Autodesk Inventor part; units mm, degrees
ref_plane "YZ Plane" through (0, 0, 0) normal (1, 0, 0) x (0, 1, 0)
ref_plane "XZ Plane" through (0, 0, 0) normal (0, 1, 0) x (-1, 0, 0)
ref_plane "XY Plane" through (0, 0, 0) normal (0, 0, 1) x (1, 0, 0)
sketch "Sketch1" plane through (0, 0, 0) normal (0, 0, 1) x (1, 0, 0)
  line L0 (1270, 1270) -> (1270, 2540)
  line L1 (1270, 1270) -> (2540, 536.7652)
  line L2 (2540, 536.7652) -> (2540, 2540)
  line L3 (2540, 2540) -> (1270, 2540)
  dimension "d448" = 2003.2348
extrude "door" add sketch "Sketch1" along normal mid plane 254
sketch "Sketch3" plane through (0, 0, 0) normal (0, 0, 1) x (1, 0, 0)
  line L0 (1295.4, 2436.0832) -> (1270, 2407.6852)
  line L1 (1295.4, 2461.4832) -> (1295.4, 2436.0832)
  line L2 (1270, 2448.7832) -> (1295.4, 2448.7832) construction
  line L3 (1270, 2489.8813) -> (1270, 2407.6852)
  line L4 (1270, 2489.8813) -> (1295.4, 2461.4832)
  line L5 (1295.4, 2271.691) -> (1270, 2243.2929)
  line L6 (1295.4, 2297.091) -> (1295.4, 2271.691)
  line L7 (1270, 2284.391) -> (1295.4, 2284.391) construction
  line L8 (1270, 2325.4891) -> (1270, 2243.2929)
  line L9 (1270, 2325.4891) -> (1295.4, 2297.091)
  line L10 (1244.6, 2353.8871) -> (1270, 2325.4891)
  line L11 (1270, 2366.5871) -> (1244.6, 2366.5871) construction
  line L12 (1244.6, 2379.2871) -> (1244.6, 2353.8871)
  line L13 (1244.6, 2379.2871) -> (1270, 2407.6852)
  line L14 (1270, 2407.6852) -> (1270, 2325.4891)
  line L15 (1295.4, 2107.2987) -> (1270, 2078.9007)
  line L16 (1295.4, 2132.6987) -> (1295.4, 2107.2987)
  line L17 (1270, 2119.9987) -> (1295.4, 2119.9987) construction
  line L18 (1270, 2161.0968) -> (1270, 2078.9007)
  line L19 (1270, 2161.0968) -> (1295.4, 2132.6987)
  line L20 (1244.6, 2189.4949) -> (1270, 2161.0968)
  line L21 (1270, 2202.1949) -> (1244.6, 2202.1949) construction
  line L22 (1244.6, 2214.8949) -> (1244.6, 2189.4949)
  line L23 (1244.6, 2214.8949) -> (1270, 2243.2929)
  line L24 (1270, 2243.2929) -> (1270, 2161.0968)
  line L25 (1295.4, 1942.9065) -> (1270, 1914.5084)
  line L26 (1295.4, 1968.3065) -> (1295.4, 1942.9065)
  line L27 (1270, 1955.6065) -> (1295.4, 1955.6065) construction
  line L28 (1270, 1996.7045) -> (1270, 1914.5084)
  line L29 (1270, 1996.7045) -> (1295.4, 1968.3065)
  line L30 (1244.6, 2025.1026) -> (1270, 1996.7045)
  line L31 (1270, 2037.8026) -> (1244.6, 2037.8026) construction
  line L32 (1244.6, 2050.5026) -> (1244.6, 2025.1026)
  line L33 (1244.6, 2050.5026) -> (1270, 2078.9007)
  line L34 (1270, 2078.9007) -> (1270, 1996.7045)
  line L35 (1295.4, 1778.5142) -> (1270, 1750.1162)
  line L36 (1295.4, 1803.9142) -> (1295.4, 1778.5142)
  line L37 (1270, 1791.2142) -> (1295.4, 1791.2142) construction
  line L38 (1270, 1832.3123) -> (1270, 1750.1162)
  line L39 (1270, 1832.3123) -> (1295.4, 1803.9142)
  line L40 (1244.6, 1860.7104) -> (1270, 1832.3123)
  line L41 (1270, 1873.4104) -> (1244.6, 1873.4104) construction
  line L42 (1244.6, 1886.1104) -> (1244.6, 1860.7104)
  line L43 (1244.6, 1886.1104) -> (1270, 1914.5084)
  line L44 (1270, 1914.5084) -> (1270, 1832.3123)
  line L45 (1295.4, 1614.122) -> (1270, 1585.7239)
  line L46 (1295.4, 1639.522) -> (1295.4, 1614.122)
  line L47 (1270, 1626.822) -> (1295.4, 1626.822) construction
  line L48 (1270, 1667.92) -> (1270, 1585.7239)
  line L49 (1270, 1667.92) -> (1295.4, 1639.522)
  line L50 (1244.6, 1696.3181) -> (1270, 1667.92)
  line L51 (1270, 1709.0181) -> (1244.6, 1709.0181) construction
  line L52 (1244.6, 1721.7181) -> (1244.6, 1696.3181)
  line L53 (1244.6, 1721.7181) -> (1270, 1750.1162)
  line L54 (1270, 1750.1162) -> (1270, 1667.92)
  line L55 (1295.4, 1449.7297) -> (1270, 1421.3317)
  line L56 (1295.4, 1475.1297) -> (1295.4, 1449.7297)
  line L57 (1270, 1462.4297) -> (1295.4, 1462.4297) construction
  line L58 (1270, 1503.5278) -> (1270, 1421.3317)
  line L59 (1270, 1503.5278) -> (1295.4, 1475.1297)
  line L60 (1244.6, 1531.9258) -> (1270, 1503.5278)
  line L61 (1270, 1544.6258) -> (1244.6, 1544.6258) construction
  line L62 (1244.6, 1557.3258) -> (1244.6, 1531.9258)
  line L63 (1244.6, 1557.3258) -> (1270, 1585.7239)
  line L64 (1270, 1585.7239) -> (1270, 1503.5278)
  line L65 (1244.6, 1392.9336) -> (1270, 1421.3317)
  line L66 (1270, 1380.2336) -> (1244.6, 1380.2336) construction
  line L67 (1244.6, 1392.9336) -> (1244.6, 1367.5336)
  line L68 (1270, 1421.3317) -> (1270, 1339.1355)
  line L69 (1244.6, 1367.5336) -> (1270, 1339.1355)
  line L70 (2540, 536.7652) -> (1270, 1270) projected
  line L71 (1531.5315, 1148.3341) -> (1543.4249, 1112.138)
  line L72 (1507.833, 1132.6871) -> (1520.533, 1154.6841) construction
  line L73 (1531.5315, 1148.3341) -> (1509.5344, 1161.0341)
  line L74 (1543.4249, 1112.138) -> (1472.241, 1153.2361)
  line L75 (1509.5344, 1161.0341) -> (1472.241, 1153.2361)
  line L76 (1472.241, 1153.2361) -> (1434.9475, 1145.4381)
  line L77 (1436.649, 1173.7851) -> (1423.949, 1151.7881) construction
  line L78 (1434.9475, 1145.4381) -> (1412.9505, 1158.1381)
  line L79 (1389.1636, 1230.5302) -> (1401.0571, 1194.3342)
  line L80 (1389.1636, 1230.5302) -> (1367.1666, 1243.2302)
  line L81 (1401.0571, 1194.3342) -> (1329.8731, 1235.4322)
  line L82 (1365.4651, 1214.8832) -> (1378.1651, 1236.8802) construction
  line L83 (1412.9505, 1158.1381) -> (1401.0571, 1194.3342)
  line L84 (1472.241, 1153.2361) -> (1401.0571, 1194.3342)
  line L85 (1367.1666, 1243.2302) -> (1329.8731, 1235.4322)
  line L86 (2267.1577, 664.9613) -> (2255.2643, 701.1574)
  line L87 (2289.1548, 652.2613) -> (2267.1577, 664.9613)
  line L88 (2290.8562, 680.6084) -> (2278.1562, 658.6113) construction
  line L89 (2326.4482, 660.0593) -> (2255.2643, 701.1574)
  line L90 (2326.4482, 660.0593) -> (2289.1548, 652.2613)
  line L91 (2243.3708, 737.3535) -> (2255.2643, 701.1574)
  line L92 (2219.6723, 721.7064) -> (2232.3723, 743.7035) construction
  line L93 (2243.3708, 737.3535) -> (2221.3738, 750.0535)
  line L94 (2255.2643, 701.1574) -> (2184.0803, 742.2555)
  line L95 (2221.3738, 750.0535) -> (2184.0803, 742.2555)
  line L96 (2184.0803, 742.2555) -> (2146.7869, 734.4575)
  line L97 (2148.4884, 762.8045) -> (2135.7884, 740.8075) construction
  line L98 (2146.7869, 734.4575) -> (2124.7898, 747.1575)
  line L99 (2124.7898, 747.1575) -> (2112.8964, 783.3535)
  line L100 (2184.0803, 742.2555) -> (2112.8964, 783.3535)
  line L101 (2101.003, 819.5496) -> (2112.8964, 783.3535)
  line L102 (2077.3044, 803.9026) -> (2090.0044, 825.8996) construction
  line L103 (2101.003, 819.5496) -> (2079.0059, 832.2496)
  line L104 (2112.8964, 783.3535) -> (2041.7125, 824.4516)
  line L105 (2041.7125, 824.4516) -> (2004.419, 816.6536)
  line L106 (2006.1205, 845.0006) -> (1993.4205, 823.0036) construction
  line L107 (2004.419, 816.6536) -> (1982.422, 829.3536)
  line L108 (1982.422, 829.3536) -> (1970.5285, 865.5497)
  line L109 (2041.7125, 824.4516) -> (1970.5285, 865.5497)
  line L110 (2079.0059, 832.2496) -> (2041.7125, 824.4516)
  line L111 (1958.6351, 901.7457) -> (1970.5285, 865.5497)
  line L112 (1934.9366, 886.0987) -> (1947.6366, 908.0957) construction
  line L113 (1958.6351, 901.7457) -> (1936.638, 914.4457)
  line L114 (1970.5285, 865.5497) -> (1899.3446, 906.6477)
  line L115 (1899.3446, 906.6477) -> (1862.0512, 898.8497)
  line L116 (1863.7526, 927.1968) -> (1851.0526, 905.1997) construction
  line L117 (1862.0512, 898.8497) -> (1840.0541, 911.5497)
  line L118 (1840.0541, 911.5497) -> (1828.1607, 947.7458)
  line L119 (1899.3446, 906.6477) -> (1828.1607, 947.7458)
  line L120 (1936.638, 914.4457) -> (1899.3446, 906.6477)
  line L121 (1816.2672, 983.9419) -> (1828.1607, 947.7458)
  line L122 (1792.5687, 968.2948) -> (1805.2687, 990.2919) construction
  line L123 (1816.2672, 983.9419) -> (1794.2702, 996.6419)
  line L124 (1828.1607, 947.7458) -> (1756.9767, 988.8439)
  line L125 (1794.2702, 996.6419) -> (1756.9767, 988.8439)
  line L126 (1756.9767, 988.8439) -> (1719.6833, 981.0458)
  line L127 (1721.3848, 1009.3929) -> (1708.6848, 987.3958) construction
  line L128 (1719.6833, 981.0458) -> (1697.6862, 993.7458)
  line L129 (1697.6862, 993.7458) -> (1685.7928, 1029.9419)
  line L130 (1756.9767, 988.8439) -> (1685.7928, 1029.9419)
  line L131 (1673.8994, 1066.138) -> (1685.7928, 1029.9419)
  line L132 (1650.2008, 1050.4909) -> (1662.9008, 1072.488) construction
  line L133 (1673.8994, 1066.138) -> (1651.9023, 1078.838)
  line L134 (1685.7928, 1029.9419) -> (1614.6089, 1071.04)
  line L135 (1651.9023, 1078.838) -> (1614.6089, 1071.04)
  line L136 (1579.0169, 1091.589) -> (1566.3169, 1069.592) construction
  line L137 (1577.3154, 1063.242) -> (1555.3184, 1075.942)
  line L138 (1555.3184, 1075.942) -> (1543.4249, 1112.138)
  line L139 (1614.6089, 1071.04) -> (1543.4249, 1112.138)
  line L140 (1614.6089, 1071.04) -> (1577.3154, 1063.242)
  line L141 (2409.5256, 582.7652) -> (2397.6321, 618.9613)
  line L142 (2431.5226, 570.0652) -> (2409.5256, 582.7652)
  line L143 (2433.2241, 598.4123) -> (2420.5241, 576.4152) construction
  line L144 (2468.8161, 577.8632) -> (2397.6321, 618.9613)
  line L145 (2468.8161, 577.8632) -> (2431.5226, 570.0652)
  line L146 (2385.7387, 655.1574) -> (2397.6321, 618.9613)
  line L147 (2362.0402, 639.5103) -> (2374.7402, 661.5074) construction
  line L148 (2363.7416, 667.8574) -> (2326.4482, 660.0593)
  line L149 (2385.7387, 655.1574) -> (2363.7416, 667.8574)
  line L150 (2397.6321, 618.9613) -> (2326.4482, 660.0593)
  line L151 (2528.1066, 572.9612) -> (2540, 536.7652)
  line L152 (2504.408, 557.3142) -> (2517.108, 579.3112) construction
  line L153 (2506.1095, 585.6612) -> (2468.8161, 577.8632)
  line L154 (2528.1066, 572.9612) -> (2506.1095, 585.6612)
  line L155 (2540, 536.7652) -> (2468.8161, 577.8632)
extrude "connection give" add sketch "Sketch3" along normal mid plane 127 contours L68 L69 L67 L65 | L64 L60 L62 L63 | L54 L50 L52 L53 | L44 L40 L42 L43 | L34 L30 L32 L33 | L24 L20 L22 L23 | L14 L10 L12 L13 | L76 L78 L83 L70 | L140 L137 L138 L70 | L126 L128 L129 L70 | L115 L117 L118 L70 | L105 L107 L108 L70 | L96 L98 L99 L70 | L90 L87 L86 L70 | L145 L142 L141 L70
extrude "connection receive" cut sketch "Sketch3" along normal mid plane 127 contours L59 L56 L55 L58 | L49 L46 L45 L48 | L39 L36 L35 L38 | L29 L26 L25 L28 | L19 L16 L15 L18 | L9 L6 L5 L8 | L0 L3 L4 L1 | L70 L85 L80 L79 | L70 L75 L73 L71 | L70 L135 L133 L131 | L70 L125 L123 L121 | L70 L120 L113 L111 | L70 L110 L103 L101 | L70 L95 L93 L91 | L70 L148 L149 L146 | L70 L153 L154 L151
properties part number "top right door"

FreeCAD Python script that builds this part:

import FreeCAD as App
import Part
import Sketcher
from FreeCAD import Vector
Q = App.Units.Quantity

doc = App.newDocument("Part")
params = doc.addObject("Spreadsheet::Sheet", "Params")
for row, (alias, value) in enumerate([
    ("sketch1_width", "50 in"),
    ("pad1_length", "10 in"),
    ("sketch2_height", "1 in"),
    ("sketch2_length", "1 in"),
    ("sketch2_length2", "1.5 in"),
    ("pad2_length", "5 in"),
    ("sketch3_height", "1 in"),
    ("sketch3_length", "1 in"),
    ("sketch3_length2", "1.5 in"),
    ("pocket1_length", "5 in"),
], start=1):
    params.set(f"A{row}", alias)
    params.set(f"B{row}", "=" + value)
    params.setAlias(f"B{row}", alias)

body = doc.addObject("PartDesign::Body", "Body")

# Sketch on XY plane
sketch1 = doc.addObject("Sketcher::SketchObject", "Sketch")
body.addObject(sketch1)
sketch1.AttachmentSupport = (doc.XY_Plane, [""])
sketch1.MapMode = "FlatFace"
sketch1.addGeometry([
    Part.LineSegment(Vector(1270, 2540, 0), Vector(1270, 1270, 0)),
    Part.LineSegment(Vector(1270, 1270, 0), Vector(2540, 537, 0)),
    Part.LineSegment(Vector(2540, 537, 0), Vector(2540, 2540, 0)),
    Part.LineSegment(Vector(2540, 2540, 0), Vector(1270, 2540, 0)),
], False)
sketch1.addConstraint([
    Sketcher.Constraint("Coincident", 0, 2, 1, 1),
    Sketcher.Constraint("Coincident", 1, 2, 2, 1),
    Sketcher.Constraint("Coincident", 2, 2, 3, 1),
    Sketcher.Constraint("Coincident", 3, 2, 0, 1),
    Sketcher.Constraint("Vertical", 0),
    Sketcher.Constraint("Vertical", 2),
    Sketcher.Constraint("Horizontal", 3),
    Sketcher.Constraint("Equal", 3, 0),
    Sketcher.Constraint("DistanceX", 3, 2, 3, 1, Q("50 in")),
    Sketcher.Constraint("DistanceY", 2, 1, 2, 2, Q("78.8675 in")),
    Sketcher.Constraint("DistanceX", -1, 1, 0, 2, Q("50 in")),
    Sketcher.Constraint("DistanceY", -1, 1, 0, 2, Q("50 in")),
])
sketch1.setExpression("Constraints[8]", "Params.sketch1_width")
pad1 = doc.addObject("PartDesign::Pad", "Pad")
body.addObject(pad1)
pad1.Profile = sketch1
pad1.setExpression("Length", "Params.pad1_length")
pad1.Midplane = True

# Sketch on XY plane
sketch2 = doc.addObject("Sketcher::SketchObject", "Sketch001")
body.addObject(sketch2)
sketch2.AttachmentSupport = (doc.XY_Plane, [""])
sketch2.MapMode = "FlatFace"
sketch2.addGeometry([
    Part.LineSegment(Vector(1270, 1339, 0), Vector(1270, 1421, 0)),  # 0
    Part.LineSegment(Vector(1270, 1421, 0), Vector(1245, 1393, 0)),  # 1
    Part.LineSegment(Vector(1245, 1393, 0), Vector(1245, 1368, 0)),  # 2
    Part.LineSegment(Vector(1245, 1368, 0), Vector(1270, 1339, 0)),  # 3
    Part.LineSegment(Vector(1270, 1504, 0), Vector(1270, 1586, 0)),  # 4
    Part.LineSegment(Vector(1270, 1586, 0), Vector(1245, 1557, 0)),  # 5
    Part.LineSegment(Vector(1245, 1557, 0), Vector(1245, 1532, 0)),  # 6
    Part.LineSegment(Vector(1245, 1532, 0), Vector(1270, 1504, 0)),  # 7
    Part.LineSegment(Vector(1270, 1668, 0), Vector(1270, 1750, 0)),  # 8
    Part.LineSegment(Vector(1270, 1750, 0), Vector(1245, 1722, 0)),  # 9
    Part.LineSegment(Vector(1245, 1722, 0), Vector(1245, 1696, 0)),  # 10
    Part.LineSegment(Vector(1245, 1696, 0), Vector(1270, 1668, 0)),  # 11
    Part.LineSegment(Vector(1270, 1832, 0), Vector(1270, 1915, 0)),  # 12
    Part.LineSegment(Vector(1270, 1915, 0), Vector(1245, 1886, 0)),  # 13
    Part.LineSegment(Vector(1245, 1886, 0), Vector(1245, 1861, 0)),  # 14
    Part.LineSegment(Vector(1245, 1861, 0), Vector(1270, 1832, 0)),  # 15
    Part.LineSegment(Vector(1270, 1997, 0), Vector(1270, 2079, 0)),  # 16
    Part.LineSegment(Vector(1270, 2079, 0), Vector(1245, 2051, 0)),  # 17
    Part.LineSegment(Vector(1245, 2051, 0), Vector(1245, 2025, 0)),  # 18
    Part.LineSegment(Vector(1245, 2025, 0), Vector(1270, 1997, 0)),  # 19
    Part.LineSegment(Vector(1270, 2161, 0), Vector(1270, 2243, 0)),  # 20
    Part.LineSegment(Vector(1270, 2243, 0), Vector(1245, 2215, 0)),  # 21
    Part.LineSegment(Vector(1245, 2215, 0), Vector(1245, 2189, 0)),  # 22
    Part.LineSegment(Vector(1245, 2189, 0), Vector(1270, 2161, 0)),  # 23
    Part.LineSegment(Vector(1270, 2325, 0), Vector(1270, 2408, 0)),  # 24
    Part.LineSegment(Vector(1270, 2408, 0), Vector(1245, 2379, 0)),  # 25
    Part.LineSegment(Vector(1245, 2379, 0), Vector(1245, 2354, 0)),  # 26
    Part.LineSegment(Vector(1245, 2354, 0), Vector(1270, 2325, 0)),  # 27
    Part.LineSegment(Vector(1435, 1145, 0), Vector(1472, 1153, 0)),  # 28
    Part.LineSegment(Vector(1472, 1153, 0), Vector(1401, 1194, 0)),  # 29
    Part.LineSegment(Vector(1401, 1194, 0), Vector(1413, 1158, 0)),  # 30
    Part.LineSegment(Vector(1413, 1158, 0), Vector(1435, 1145, 0)),  # 31
    Part.LineSegment(Vector(1577, 1063, 0), Vector(1615, 1071, 0)),  # 32
    Part.LineSegment(Vector(1615, 1071, 0), Vector(1543, 1112, 0)),  # 33
    Part.LineSegment(Vector(1543, 1112, 0), Vector(1555, 1076, 0)),  # 34
    Part.LineSegment(Vector(1555, 1076, 0), Vector(1577, 1063, 0)),  # 35
    Part.LineSegment(Vector(1720, 981, 0), Vector(1757, 989, 0)),  # 36
    Part.LineSegment(Vector(1757, 989, 0), Vector(1686, 1030, 0)),  # 37
    Part.LineSegment(Vector(1686, 1030, 0), Vector(1698, 994, 0)),  # 38
    Part.LineSegment(Vector(1698, 994, 0), Vector(1720, 981, 0)),  # 39
    Part.LineSegment(Vector(1862, 899, 0), Vector(1899, 907, 0)),  # 40
    Part.LineSegment(Vector(1899, 907, 0), Vector(1828, 948, 0)),  # 41
    Part.LineSegment(Vector(1828, 948, 0), Vector(1840, 912, 0)),  # 42
    Part.LineSegment(Vector(1840, 912, 0), Vector(1862, 899, 0)),  # 43
    Part.LineSegment(Vector(2004, 817, 0), Vector(2042, 824, 0)),  # 44
    Part.LineSegment(Vector(2042, 824, 0), Vector(1971, 866, 0)),  # 45
    Part.LineSegment(Vector(1971, 866, 0), Vector(1982, 829, 0)),  # 46
    Part.LineSegment(Vector(1982, 829, 0), Vector(2004, 817, 0)),  # 47
    Part.LineSegment(Vector(2147, 734, 0), Vector(2184, 742, 0)),  # 48
    Part.LineSegment(Vector(2184, 742, 0), Vector(2113, 783, 0)),  # 49
    Part.LineSegment(Vector(2113, 783, 0), Vector(2125, 747, 0)),  # 50
    Part.LineSegment(Vector(2125, 747, 0), Vector(2147, 734, 0)),  # 51
    Part.LineSegment(Vector(2289, 652, 0), Vector(2326, 660, 0)),  # 52
    Part.LineSegment(Vector(2326, 660, 0), Vector(2255, 701, 0)),  # 53
    Part.LineSegment(Vector(2255, 701, 0), Vector(2267, 665, 0)),  # 54
    Part.LineSegment(Vector(2267, 665, 0), Vector(2289, 652, 0)),  # 55
    Part.LineSegment(Vector(2432, 570, 0), Vector(2469, 578, 0)),  # 56
    Part.LineSegment(Vector(2469, 578, 0), Vector(2398, 619, 0)),  # 57
    Part.LineSegment(Vector(2398, 619, 0), Vector(2410, 583, 0)),  # 58
    Part.LineSegment(Vector(2410, 583, 0), Vector(2432, 570, 0)),  # 59
], False)
sketch2.addConstraint([
    Sketcher.Constraint("Coincident", 0, 2, 1, 1),
    Sketcher.Constraint("Coincident", 1, 2, 2, 1),
    Sketcher.Constraint("Coincident", 2, 2, 3, 1),
    Sketcher.Constraint("Coincident", 3, 2, 0, 1),
    Sketcher.Constraint("Coincident", 4, 2, 5, 1),
    Sketcher.Constraint("Coincident", 5, 2, 6, 1),
    Sketcher.Constraint("Coincident", 6, 2, 7, 1),
    Sketcher.Constraint("Coincident", 7, 2, 4, 1),
    Sketcher.Constraint("Coincident", 8, 2, 9, 1),
    Sketcher.Constraint("Coincident", 9, 2, 10, 1),
    Sketcher.Constraint("Coincident", 10, 2, 11, 1),
    Sketcher.Constraint("Coincident", 11, 2, 8, 1),
    Sketcher.Constraint("Coincident", 12, 2, 13, 1),
    Sketcher.Constraint("Coincident", 13, 2, 14, 1),
    Sketcher.Constraint("Coincident", 14, 2, 15, 1),
    Sketcher.Constraint("Coincident", 15, 2, 12, 1),
    Sketcher.Constraint("Coincident", 16, 2, 17, 1),
    Sketcher.Constraint("Coincident", 17, 2, 18, 1),
    Sketcher.Constraint("Coincident", 18, 2, 19, 1),
    Sketcher.Constraint("Coincident", 19, 2, 16, 1),
    Sketcher.Constraint("Coincident", 20, 2, 21, 1),
    Sketcher.Constraint("Coincident", 21, 2, 22, 1),
    Sketcher.Constraint("Coincident", 22, 2, 23, 1),
    Sketcher.Constraint("Coincident", 23, 2, 20, 1),
    Sketcher.Constraint("Coincident", 24, 2, 25, 1),
    Sketcher.Constraint("Coincident", 25, 2, 26, 1),
    Sketcher.Constraint("Coincident", 26, 2, 27, 1),
    Sketcher.Constraint("Coincident", 27, 2, 24, 1),
    Sketcher.Constraint("Coincident", 28, 2, 29, 1),
    Sketcher.Constraint("Coincident", 29, 2, 30, 1),
    Sketcher.Constraint("Coincident", 30, 2, 31, 1),
    Sketcher.Constraint("Coincident", 31, 2, 28, 1),
    Sketcher.Constraint("Coincident", 32, 2, 33, 1),
    Sketcher.Constraint("Coincident", 33, 2, 34, 1),
    Sketcher.Constraint("Coincident", 34, 2, 35, 1),
    Sketcher.Constraint("Coincident", 35, 2, 32, 1),
    Sketcher.Constraint("Coincident", 36, 2, 37, 1),
    Sketcher.Constraint("Coincident", 37, 2, 38, 1),
    Sketcher.Constraint("Coincident", 38, 2, 39, 1),
    Sketcher.Constraint("Coincident", 39, 2, 36, 1),
    Sketcher.Constraint("Coincident", 40, 2, 41, 1),
    Sketcher.Constraint("Coincident", 41, 2, 42, 1),
    Sketcher.Constraint("Coincident", 42, 2, 43, 1),
    Sketcher.Constraint("Coincident", 43, 2, 40, 1),
    Sketcher.Constraint("Coincident", 44, 2, 45, 1),
    Sketcher.Constraint("Coincident", 45, 2, 46, 1),
    Sketcher.Constraint("Coincident", 46, 2, 47, 1),
    Sketcher.Constraint("Coincident", 47, 2, 44, 1),
    Sketcher.Constraint("Coincident", 48, 2, 49, 1),
    Sketcher.Constraint("Coincident", 49, 2, 50, 1),
    Sketcher.Constraint("Coincident", 50, 2, 51, 1),
    Sketcher.Constraint("Coincident", 51, 2, 48, 1),
    Sketcher.Constraint("Coincident", 52, 2, 53, 1),
    Sketcher.Constraint("Coincident", 53, 2, 54, 1),
    Sketcher.Constraint("Coincident", 54, 2, 55, 1),
    Sketcher.Constraint("Coincident", 55, 2, 52, 1),
    Sketcher.Constraint("Coincident", 56, 2, 57, 1),
    Sketcher.Constraint("Coincident", 57, 2, 58, 1),
    Sketcher.Constraint("Coincident", 58, 2, 59, 1),
    Sketcher.Constraint("Coincident", 59, 2, 56, 1),
    Sketcher.Constraint("Vertical", 0),
    Sketcher.Constraint("Vertical", 2),
    Sketcher.Constraint("Vertical", 4),
    Sketcher.Constraint("Vertical", 6),
    Sketcher.Constraint("Vertical", 8),
    Sketcher.Constraint("Vertical", 10),
    Sketcher.Constraint("Vertical", 12),
    Sketcher.Constraint("Vertical", 14),
    Sketcher.Constraint("Vertical", 16),
    Sketcher.Constraint("Vertical", 18),
    Sketcher.Constraint("Vertical", 20),
    Sketcher.Constraint("Vertical", 22),
    Sketcher.Constraint("Vertical", 24),
    Sketcher.Constraint("Vertical", 26),
    Sketcher.Constraint("Parallel", 1, 5),
    Sketcher.Constraint("Parallel", 3, 7),
    Sketcher.Constraint("Parallel", 5, 9),
    Sketcher.Constraint("Parallel", 7, 11),
    Sketcher.Constraint("Parallel", 9, 13),
    Sketcher.Constraint("Parallel", 11, 15),
    Sketcher.Constraint("Parallel", 13, 17),
    Sketcher.Constraint("Parallel", 15, 19),
    Sketcher.Constraint("Parallel", 17, 21),
    Sketcher.Constraint("Parallel", 19, 23),
    Sketcher.Constraint("Parallel", 21, 25),
    Sketcher.Constraint("Parallel", 23, 27),
    Sketcher.Constraint("Parallel", 29, 31),
    Sketcher.Constraint("Parallel", 28, 32),
    Sketcher.Constraint("Parallel", 31, 33),
    Sketcher.Constraint("Parallel", 30, 34),
    Sketcher.Constraint("Parallel", 33, 35),
    Sketcher.Constraint("Parallel", 32, 36),
    Sketcher.Constraint("Parallel", 35, 37),
    Sketcher.Constraint("Parallel", 34, 38),
    Sketcher.Constraint("Parallel", 37, 39),
    Sketcher.Constraint("Parallel", 36, 40),
    Sketcher.Constraint("Parallel", 39, 41),
    Sketcher.Constraint("Parallel", 38, 42),
    Sketcher.Constraint("Parallel", 41, 43),
    Sketcher.Constraint("Parallel", 40, 44),
    Sketcher.Constraint("Parallel", 43, 45),
    Sketcher.Constraint("Parallel", 42, 46),
    Sketcher.Constraint("Parallel", 45, 47),
    Sketcher.Constraint("Parallel", 44, 48),
    Sketcher.Constraint("Parallel", 47, 49),
    Sketcher.Constraint("Parallel", 46, 50),
    Sketcher.Constraint("Parallel", 49, 51),
    Sketcher.Constraint("Parallel", 48, 52),
    Sketcher.Constraint("Parallel", 51, 53),
    Sketcher.Constraint("Parallel", 50, 54),
    Sketcher.Constraint("Parallel", 53, 55),
    Sketcher.Constraint("Parallel", 52, 56),
    Sketcher.Constraint("Parallel", 55, 57),
    Sketcher.Constraint("Parallel", 54, 58),
    Sketcher.Constraint("Parallel", 57, 59),
    Sketcher.Constraint("Vertical", 3, 2, 4, 2),
    Sketcher.Constraint("Vertical", 2, 2, 5, 2),
    Sketcher.Constraint("Vertical", 7, 2, 8, 2),
    Sketcher.Constraint("Vertical", 6, 2, 9, 2),
    Sketcher.Constraint("Vertical", 11, 2, 12, 2),
    Sketcher.Constraint("Vertical", 10, 2, 13, 2),
    Sketcher.Constraint("Vertical", 15, 2, 16, 2),
    Sketcher.Constraint("Vertical", 14, 2, 17, 2),
    Sketcher.Constraint("Vertical", 19, 2, 20, 2),
    Sketcher.Constraint("Vertical", 18, 2, 21, 2),
    Sketcher.Constraint("Vertical", 23, 2, 24, 2),
    Sketcher.Constraint("Vertical", 22, 2, 25, 2),
    Sketcher.Constraint("Equal", 0, 4),
    Sketcher.Constraint("Equal", 4, 8),
    Sketcher.Constraint("Equal", 8, 12),
    Sketcher.Constraint("Equal", 12, 16),
    Sketcher.Constraint("Equal", 16, 20),
    Sketcher.Constraint("Equal", 20, 24),
    Sketcher.Constraint("Equal", 1, 3),
    Sketcher.Constraint("Equal", 27, 28),
    Sketcher.Constraint("Equal", 28, 30),
    Sketcher.Constraint("Equal", 30, 32),
    Sketcher.Constraint("Equal", 29, 33),
    Sketcher.Constraint("Equal", 34, 36),
    Sketcher.Constraint("Equal", 33, 37),
    Sketcher.Constraint("Equal", 38, 40),
    Sketcher.Constraint("Equal", 37, 41),
    Sketcher.Constraint("Equal", 42, 44),
    Sketcher.Constraint("Equal", 41, 45),
    Sketcher.Constraint("Equal", 46, 48),
    Sketcher.Constraint("Equal", 45, 49),
    Sketcher.Constraint("Equal", 50, 52),
    Sketcher.Constraint("Equal", 49, 53),
    Sketcher.Constraint("Equal", 54, 56),
    Sketcher.Constraint("Equal", 53, 57),
    Sketcher.Constraint("DistanceY", 2, 2, 2, 1, Q("1 in")),
    Sketcher.Constraint("Distance", 31, Q("1 in")),
    Sketcher.Constraint("DistanceX", -1, 1, 0, 2, Q("50 in")),
    Sketcher.Constraint("DistanceX", -1, 1, 1, 2, Q("49 in")),
    Sketcher.Constraint("Angle", 29, Q("150 deg")),
    Sketcher.Constraint("Distance", 1, Q("1.5 in")),
    Sketcher.Constraint("Angle", 28, Q("11.8103 deg")),
    Sketcher.Constraint("DistanceY", -1, 1, 7, 2, Q("59.194 in")),
    Sketcher.Constraint("DistanceY", -1, 1, 28, 2, Q("45.403 in")),
    Sketcher.Constraint("DistanceX", -1, 1, 31, 2, Q("56.494 in")),
    Sketcher.Constraint("DistanceX", -1, 1, 34, 2, Q("61.233 in")),
    Sketcher.Constraint("DistanceX", 35, 2, 38, 2, Q("4.739 in")),
    Sketcher.Constraint("DistanceX", 39, 2, 42, 2, Q("4.739 in")),
    Sketcher.Constraint("DistanceX", 43, 2, 46, 2, Q("4.739 in")),
    Sketcher.Constraint("DistanceX", 47, 2, 50, 2, Q("4.739 in")),
    Sketcher.Constraint("DistanceX", 51, 2, 54, 2, Q("4.739 in")),
    Sketcher.Constraint("DistanceX", 55, 2, 58, 2, Q("4.739 in")),
    Sketcher.Constraint("DistanceY", -1, 1, 1, 2, Q("54.8399 in")),
    Sketcher.Constraint("DistanceY", -1, 1, 27, 2, Q("91.5547 in")),
    Sketcher.Constraint("DistanceY", -1, 1, 37, 2, Q("40.5489 in")),
    Sketcher.Constraint("DistanceY", -1, 1, 40, 2, Q("35.6948 in")),
    Sketcher.Constraint("DistanceY", -1, 1, 49, 2, Q("30.8407 in")),
    Sketcher.Constraint("DistanceY", -1, 1, 58, 2, Q("22.9435 in")),
    Sketcher.Constraint("DistanceY", 7, 2, 8, 2, Q("9.7082 in")),
    Sketcher.Constraint("DistanceY", 11, 2, 12, 2, Q("9.7082 in")),
    Sketcher.Constraint("DistanceY", 15, 2, 16, 2, Q("9.7082 in")),
    Sketcher.Constraint("DistanceY", 19, 2, 20, 2, Q("9.7082 in")),
    Sketcher.Constraint("DistanceY", 32, 2, 29, 2, Q("4.8541 in")),
    Sketcher.Constraint("DistanceY", 44, 2, 41, 2, Q("4.8541 in")),
    Sketcher.Constraint("DistanceY", 52, 2, 49, 2, Q("4.8541 in")),
])
sketch2.setExpression("Constraints[150]", "Params.sketch2_height")
sketch2.setExpression("Constraints[151]", "Params.sketch2_length")
sketch2.setExpression("Constraints[155]", "Params.sketch2_length2")
pad2 = doc.addObject("PartDesign::Pad", "Pad001")
body.addObject(pad2)
pad2.Profile = sketch2
pad2.setExpression("Length", "Params.pad2_length")
pad2.Midplane = True

# Sketch on XY plane
sketch3 = doc.addObject("Sketcher::SketchObject", "Sketch002")
body.addObject(sketch3)
sketch3.AttachmentSupport = (doc.XY_Plane, [""])
sketch3.MapMode = "FlatFace"
sketch3.addGeometry([
    Part.LineSegment(Vector(1295, 1475, 0), Vector(1270, 1504, 0)),  # 0
    Part.LineSegment(Vector(1270, 1504, 0), Vector(1270, 1421, 0)),  # 1
    Part.LineSegment(Vector(1270, 1421, 0), Vector(1295, 1450, 0)),  # 2
    Part.LineSegment(Vector(1295, 1450, 0), Vector(1295, 1475, 0)),  # 3
    Part.LineSegment(Vector(1295, 1640, 0), Vector(1270, 1668, 0)),  # 4
    Part.LineSegment(Vector(1270, 1668, 0), Vector(1270, 1586, 0)),  # 5
    Part.LineSegment(Vector(1270, 1586, 0), Vector(1295, 1614, 0)),  # 6
    Part.LineSegment(Vector(1295, 1614, 0), Vector(1295, 1640, 0)),  # 7
    Part.LineSegment(Vector(1295, 1804, 0), Vector(1270, 1832, 0)),  # 8
    Part.LineSegment(Vector(1270, 1832, 0), Vector(1270, 1750, 0)),  # 9
    Part.LineSegment(Vector(1270, 1750, 0), Vector(1295, 1779, 0)),  # 10
    Part.LineSegment(Vector(1295, 1779, 0), Vector(1295, 1804, 0)),  # 11
    Part.LineSegment(Vector(1295, 1968, 0), Vector(1270, 1997, 0)),  # 12
    Part.LineSegment(Vector(1270, 1997, 0), Vector(1270, 1915, 0)),  # 13
    Part.LineSegment(Vector(1270, 1915, 0), Vector(1295, 1943, 0)),  # 14
    Part.LineSegment(Vector(1295, 1943, 0), Vector(1295, 1968, 0)),  # 15
    Part.LineSegment(Vector(1295, 2133, 0), Vector(1270, 2161, 0)),  # 16
    Part.LineSegment(Vector(1270, 2161, 0), Vector(1270, 2079, 0)),  # 17
    Part.LineSegment(Vector(1270, 2079, 0), Vector(1295, 2107, 0)),  # 18
    Part.LineSegment(Vector(1295, 2107, 0), Vector(1295, 2133, 0)),  # 19
    Part.LineSegment(Vector(1295, 2297, 0), Vector(1270, 2325, 0)),  # 20
    Part.LineSegment(Vector(1270, 2325, 0), Vector(1270, 2243, 0)),  # 21
    Part.LineSegment(Vector(1270, 2243, 0), Vector(1295, 2272, 0)),  # 22
    Part.LineSegment(Vector(1295, 2272, 0), Vector(1295, 2297, 0)),  # 23
    Part.LineSegment(Vector(1270, 2408, 0), Vector(1295, 2436, 0)),  # 24
    Part.LineSegment(Vector(1295, 2436, 0), Vector(1295, 2461, 0)),  # 25
    Part.LineSegment(Vector(1295, 2461, 0), Vector(1270, 2490, 0)),  # 26
    Part.LineSegment(Vector(1270, 2490, 0), Vector(1270, 2408, 0)),  # 27
    Part.LineSegment(Vector(1330, 1235, 0), Vector(1401, 1194, 0)),  # 28
    Part.LineSegment(Vector(1401, 1194, 0), Vector(1389, 1231, 0)),  # 29
    Part.LineSegment(Vector(1389, 1231, 0), Vector(1367, 1243, 0)),  # 30
    Part.LineSegment(Vector(1367, 1243, 0), Vector(1330, 1235, 0)),  # 31
    Part.LineSegment(Vector(1472, 1153, 0), Vector(1543, 1112, 0)),  # 32
    Part.LineSegment(Vector(1543, 1112, 0), Vector(1532, 1148, 0)),  # 33
    Part.LineSegment(Vector(1532, 1148, 0), Vector(1510, 1161, 0)),  # 34
    Part.LineSegment(Vector(1510, 1161, 0), Vector(1472, 1153, 0)),  # 35
    Part.LineSegment(Vector(1615, 1071, 0), Vector(1686, 1030, 0)),  # 36
    Part.LineSegment(Vector(1686, 1030, 0), Vector(1674, 1066, 0)),  # 37
    Part.LineSegment(Vector(1674, 1066, 0), Vector(1652, 1079, 0)),  # 38
    Part.LineSegment(Vector(1652, 1079, 0), Vector(1615, 1071, 0)),  # 39
    Part.LineSegment(Vector(1757, 989, 0), Vector(1828, 948, 0)),  # 40
    Part.LineSegment(Vector(1828, 948, 0), Vector(1816, 984, 0)),  # 41
    Part.LineSegment(Vector(1816, 984, 0), Vector(1794, 997, 0)),  # 42
    Part.LineSegment(Vector(1794, 997, 0), Vector(1757, 989, 0)),  # 43
    Part.LineSegment(Vector(1899, 907, 0), Vector(1971, 866, 0)),  # 44
    Part.LineSegment(Vector(1971, 866, 0), Vector(1959, 902, 0)),  # 45
    Part.LineSegment(Vector(1959, 902, 0), Vector(1937, 914, 0)),  # 46
    Part.LineSegment(Vector(1937, 914, 0), Vector(1899, 907, 0)),  # 47
    Part.LineSegment(Vector(2042, 824, 0), Vector(2113, 783, 0)),  # 48
    Part.LineSegment(Vector(2113, 783, 0), Vector(2101, 820, 0)),  # 49
    Part.LineSegment(Vector(2101, 820, 0), Vector(2079, 832, 0)),  # 50
    Part.LineSegment(Vector(2079, 832, 0), Vector(2042, 824, 0)),  # 51
    Part.LineSegment(Vector(2184, 742, 0), Vector(2255, 701, 0)),  # 52
    Part.LineSegment(Vector(2255, 701, 0), Vector(2243, 737, 0)),  # 53
    Part.LineSegment(Vector(2243, 737, 0), Vector(2221, 750, 0)),  # 54
    Part.LineSegment(Vector(2221, 750, 0), Vector(2184, 742, 0)),  # 55
    Part.LineSegment(Vector(2326, 660, 0), Vector(2398, 619, 0)),  # 56
    Part.LineSegment(Vector(2398, 619, 0), Vector(2386, 655, 0)),  # 57
    Part.LineSegment(Vector(2386, 655, 0), Vector(2364, 668, 0)),  # 58
    Part.LineSegment(Vector(2364, 668, 0), Vector(2326, 660, 0)),  # 59
    Part.LineSegment(Vector(2469, 578, 0), Vector(2540, 537, 0)),  # 60
    Part.LineSegment(Vector(2540, 537, 0), Vector(2528, 573, 0)),  # 61
    Part.LineSegment(Vector(2528, 573, 0), Vector(2506, 586, 0)),  # 62
    Part.LineSegment(Vector(2506, 586, 0), Vector(2469, 578, 0)),  # 63
], False)
sketch3.addConstraint([
    Sketcher.Constraint("Coincident", 0, 2, 1, 1),
    Sketcher.Constraint("Coincident", 1, 2, 2, 1),
    Sketcher.Constraint("Coincident", 2, 2, 3, 1),
    Sketcher.Constraint("Coincident", 3, 2, 0, 1),
    Sketcher.Constraint("Coincident", 4, 2, 5, 1),
    Sketcher.Constraint("Coincident", 5, 2, 6, 1),
    Sketcher.Constraint("Coincident", 6, 2, 7, 1),
    Sketcher.Constraint("Coincident", 7, 2, 4, 1),
    Sketcher.Constraint("Coincident", 8, 2, 9, 1),
    Sketcher.Constraint("Coincident", 9, 2, 10, 1),
    Sketcher.Constraint("Coincident", 10, 2, 11, 1),
    Sketcher.Constraint("Coincident", 11, 2, 8, 1),
    Sketcher.Constraint("Coincident", 12, 2, 13, 1),
    Sketcher.Constraint("Coincident", 13, 2, 14, 1),
    Sketcher.Constraint("Coincident", 14, 2, 15, 1),
    Sketcher.Constraint("Coincident", 15, 2, 12, 1),
    Sketcher.Constraint("Coincident", 16, 2, 17, 1),
    Sketcher.Constraint("Coincident", 17, 2, 18, 1),
    Sketcher.Constraint("Coincident", 18, 2, 19, 1),
    Sketcher.Constraint("Coincident", 19, 2, 16, 1),
    Sketcher.Constraint("Coincident", 20, 2, 21, 1),
    Sketcher.Constraint("Coincident", 21, 2, 22, 1),
    Sketcher.Constraint("Coincident", 22, 2, 23, 1),
    Sketcher.Constraint("Coincident", 23, 2, 20, 1),
    Sketcher.Constraint("Coincident", 24, 2, 25, 1),
    Sketcher.Constraint("Coincident", 25, 2, 26, 1),
    Sketcher.Constraint("Coincident", 26, 2, 27, 1),
    Sketcher.Constraint("Coincident", 27, 2, 24, 1),
    Sketcher.Constraint("Coincident", 28, 2, 29, 1),
    Sketcher.Constraint("Coincident", 29, 2, 30, 1),
    Sketcher.Constraint("Coincident", 30, 2, 31, 1),
    Sketcher.Constraint("Coincident", 31, 2, 28, 1),
    Sketcher.Constraint("Coincident", 32, 2, 33, 1),
    Sketcher.Constraint("Coincident", 33, 2, 34, 1),
    Sketcher.Constraint("Coincident", 34, 2, 35, 1),
    Sketcher.Constraint("Coincident", 35, 2, 32, 1),
    Sketcher.Constraint("Coincident", 36, 2, 37, 1),
    Sketcher.Constraint("Coincident", 37, 2, 38, 1),
    Sketcher.Constraint("Coincident", 38, 2, 39, 1),
    Sketcher.Constraint("Coincident", 39, 2, 36, 1),
    Sketcher.Constraint("Coincident", 40, 2, 41, 1),
    Sketcher.Constraint("Coincident", 41, 2, 42, 1),
    Sketcher.Constraint("Coincident", 42, 2, 43, 1),
    Sketcher.Constraint("Coincident", 43, 2, 40, 1),
    Sketcher.Constraint("Coincident", 44, 2, 45, 1),
    Sketcher.Constraint("Coincident", 45, 2, 46, 1),
    Sketcher.Constraint("Coincident", 46, 2, 47, 1),
    Sketcher.Constraint("Coincident", 47, 2, 44, 1),
    Sketcher.Constraint("Coincident", 48, 2, 49, 1),
    Sketcher.Constraint("Coincident", 49, 2, 50, 1),
    Sketcher.Constraint("Coincident", 50, 2, 51, 1),
    Sketcher.Constraint("Coincident", 51, 2, 48, 1),
    Sketcher.Constraint("Coincident", 52, 2, 53, 1),
    Sketcher.Constraint("Coincident", 53, 2, 54, 1),
    Sketcher.Constraint("Coincident", 54, 2, 55, 1),
    Sketcher.Constraint("Coincident", 55, 2, 52, 1),
    Sketcher.Constraint("Coincident", 56, 2, 57, 1),
    Sketcher.Constraint("Coincident", 57, 2, 58, 1),
    Sketcher.Constraint("Coincident", 58, 2, 59, 1),
    Sketcher.Constraint("Coincident", 59, 2, 56, 1),
    Sketcher.Constraint("Coincident", 60, 2, 61, 1),
    Sketcher.Constraint("Coincident", 61, 2, 62, 1),
    Sketcher.Constraint("Coincident", 62, 2, 63, 1),
    Sketcher.Constraint("Coincident", 63, 2, 60, 1),
    Sketcher.Constraint("Vertical", 1),
    Sketcher.Constraint("Vertical", 3),
    Sketcher.Constraint("Vertical", 5),
    Sketcher.Constraint("Vertical", 7),
    Sketcher.Constraint("Vertical", 9),
    Sketcher.Constraint("Vertical", 11),
    Sketcher.Constraint("Vertical", 13),
    Sketcher.Constraint("Vertical", 15),
    Sketcher.Constraint("Vertical", 17),
    Sketcher.Constraint("Vertical", 19),
    Sketcher.Constraint("Vertical", 21),
    Sketcher.Constraint("Vertical", 23),
    Sketcher.Constraint("Vertical", 25),
    Sketcher.Constraint("Vertical", 27),
    Sketcher.Constraint("Parallel", 0, 4),
    Sketcher.Constraint("Parallel", 2, 6),
    Sketcher.Constraint("Parallel", 4, 8),
    Sketcher.Constraint("Parallel", 6, 10),
    Sketcher.Constraint("Parallel", 8, 12),
    Sketcher.Constraint("Parallel", 10, 14),
    Sketcher.Constraint("Parallel", 12, 16),
    Sketcher.Constraint("Parallel", 14, 18),
    Sketcher.Constraint("Parallel", 16, 20),
    Sketcher.Constraint("Parallel", 18, 22),
    Sketcher.Constraint("Parallel", 22, 24),
    Sketcher.Constraint("Parallel", 20, 26),
    Sketcher.Constraint("Parallel", 28, 30),
    Sketcher.Constraint("Parallel", 30, 32),
    Sketcher.Constraint("Parallel", 29, 33),
    Sketcher.Constraint("Parallel", 32, 34),
    Sketcher.Constraint("Parallel", 31, 35),
    Sketcher.Constraint("Parallel", 34, 36),
    Sketcher.Constraint("Parallel", 33, 37),
    Sketcher.Constraint("Parallel", 36, 38),
    Sketcher.Constraint("Parallel", 35, 39),
    Sketcher.Constraint("Parallel", 38, 40),
    Sketcher.Constraint("Parallel", 37, 41),
    Sketcher.Constraint("Parallel", 40, 42),
    Sketcher.Constraint("Parallel", 39, 43),
    Sketcher.Constraint("Parallel", 42, 44),
    Sketcher.Constraint("Parallel", 41, 45),
    Sketcher.Constraint("Parallel", 44, 46),
    Sketcher.Constraint("Parallel", 43, 47),
    Sketcher.Constraint("Parallel", 46, 48),
    Sketcher.Constraint("Parallel", 45, 49),
    Sketcher.Constraint("Parallel", 48, 50),
    Sketcher.Constraint("Parallel", 47, 51),
    Sketcher.Constraint("Parallel", 50, 52),
    Sketcher.Constraint("Parallel", 49, 53),
    Sketcher.Constraint("Parallel", 52, 54),
    Sketcher.Constraint("Parallel", 51, 55),
    Sketcher.Constraint("Parallel", 54, 56),
    Sketcher.Constraint("Parallel", 53, 57),
    Sketcher.Constraint("Parallel", 56, 58),
    Sketcher.Constraint("Parallel", 55, 59),
    Sketcher.Constraint("Parallel", 58, 60),
    Sketcher.Constraint("Parallel", 57, 61),
    Sketcher.Constraint("Parallel", 60, 62),
    Sketcher.Constraint("Parallel", 59, 63),
    Sketcher.Constraint("Vertical", 1, 2, 4, 2),
    Sketcher.Constraint("Vertical", 3, 2, 6, 2),
    Sketcher.Constraint("Vertical", 5, 2, 8, 2),
    Sketcher.Constraint("Vertical", 7, 2, 10, 2),
    Sketcher.Constraint("Vertical", 9, 2, 12, 2),
    Sketcher.Constraint("Vertical", 11, 2, 14, 2),
    Sketcher.Constraint("Vertical", 13, 2, 16, 2),
    Sketcher.Constraint("Vertical", 15, 2, 18, 2),
    Sketcher.Constraint("Vertical", 17, 2, 20, 2),
    Sketcher.Constraint("Vertical", 19, 2, 22, 2),
    Sketcher.Constraint("Vertical", 23, 2, 24, 2),
    Sketcher.Constraint("Vertical", 21, 2, 26, 2),
    Sketcher.Constraint("Equal", 1, 5),
    Sketcher.Constraint("Equal", 5, 9),
    Sketcher.Constraint("Equal", 9, 13),
    Sketcher.Constraint("Equal", 13, 17),
    Sketcher.Constraint("Equal", 17, 21),
    Sketcher.Constraint("Equal", 23, 25),
    Sketcher.Constraint("Equal", 0, 2),
    Sketcher.Constraint("Equal", 26, 29),
    Sketcher.Constraint("Equal", 29, 31),
    Sketcher.Constraint("Equal", 28, 32),
    Sketcher.Constraint("Equal", 31, 33),
    Sketcher.Constraint("Equal", 32, 36),
    Sketcher.Constraint("Equal", 35, 37),
    Sketcher.Constraint("Equal", 36, 40),
    Sketcher.Constraint("Equal", 39, 41),
    Sketcher.Constraint("Equal", 40, 44),
    Sketcher.Constraint("Equal", 43, 45),
    Sketcher.Constraint("Equal", 44, 48),
    Sketcher.Constraint("Equal", 47, 49),
    Sketcher.Constraint("Equal", 48, 52),
    Sketcher.Constraint("Equal", 51, 53),
    Sketcher.Constraint("Equal", 52, 56),
    Sketcher.Constraint("Equal", 55, 57),
    Sketcher.Constraint("Equal", 56, 60),
    Sketcher.Constraint("Equal", 59, 61),
    Sketcher.Constraint("DistanceY", 3, 1, 3, 2, Q("1 in")),
    Sketcher.Constraint("Distance", 30, Q("1 in")),
    Sketcher.Constraint("DistanceX", -1, 1, 0, 2, Q("50 in")),
    Sketcher.Constraint("DistanceX", -1, 1, 2, 2, Q("51 in")),
    Sketcher.Constraint("DistanceX", -1, 1, 60, 2, Q("100 in")),
    Sketcher.Constraint("Angle", 28, Q("-30 deg")),
    Sketcher.Constraint("Distance", 0, Q("1.5 in")),
    Sketcher.Constraint("DistanceY", -1, 1, 33, 2, Q("45.21 in")),
    Sketcher.Constraint("Angle", 29, Q("108.1898 deg")),
    Sketcher.Constraint("DistanceY", -1, 1, 0, 2, Q("59.194 in")),
    Sketcher.Constraint("DistanceY", -1, 1, 6, 2, Q("63.5481 in")),
    Sketcher.Constraint("DistanceY", -1, 1, 20, 2, Q("91.5547 in")),
    Sketcher.Constraint("DistanceX", -1, 1, 31, 2, Q("52.3572 in")),
    Sketcher.Constraint("DistanceX", -1, 1, 34, 2, Q("59.4305 in")),
    Sketcher.Constraint("DistanceX", -1, 1, 36, 2, Q("66.3698 in")),
    Sketcher.Constraint("DistanceY", -1, 1, 36, 2, Q("40.5489 in")),
    Sketcher.Constraint("DistanceX", -1, 1, 43, 2, Q("69.1723 in")),
    Sketcher.Constraint("DistanceY", -1, 1, 45, 2, Q("35.5018 in")),
    Sketcher.Constraint("DistanceX", -1, 1, 46, 2, Q("76.2456 in")),
    Sketcher.Constraint("DistanceX", -1, 1, 48, 2, Q("83.1849 in")),
    Sketcher.Constraint("DistanceY", -1, 1, 48, 2, Q("30.8407 in")),
    Sketcher.Constraint("DistanceY", -1, 1, 57, 2, Q("25.7936 in")),
    Sketcher.Constraint("DistanceX", -1, 1, 58, 2, Q("93.0607 in")),
    Sketcher.Constraint("DistanceY", -1, 1, 60, 2, Q("21.1325 in")),
    Sketcher.Constraint("DistanceY", -1, 1, 8, 2, Q("1832.3123 mm")),
    Sketcher.Constraint("DistanceY", -1, 1, 12, 2, Q("1996.7045 mm")),
    Sketcher.Constraint("DistanceY", -1, 1, 16, 2, Q("2161.0968 mm")),
    Sketcher.Constraint("DistanceY", -1, 1, 24, 2, Q("2436.0832 mm")),
    Sketcher.Constraint("DistanceY", -1, 1, 28, 2, Q("1194.3342 mm")),
    Sketcher.Constraint("DistanceY", -1, 1, 40, 2, Q("947.7458 mm")),
    Sketcher.Constraint("DistanceX", -1, 1, 52, 2, Q("2255.2643 mm")),
    Sketcher.Constraint("DistanceY", -1, 1, 52, 2, Q("701.1574 mm")),
])
sketch3.setExpression("Constraints[160]", "Params.sketch3_height")
sketch3.setExpression("Constraints[161]", "Params.sketch3_length")
sketch3.setExpression("Constraints[166]", "Params.sketch3_length2")
pocket1 = doc.addObject("PartDesign::Pocket", "Pocket")
body.addObject(pocket1)
pocket1.Profile = sketch3
pocket1.setExpression("Length", "Params.pocket1_length")
pocket1.Midplane = True

doc.recompute()
